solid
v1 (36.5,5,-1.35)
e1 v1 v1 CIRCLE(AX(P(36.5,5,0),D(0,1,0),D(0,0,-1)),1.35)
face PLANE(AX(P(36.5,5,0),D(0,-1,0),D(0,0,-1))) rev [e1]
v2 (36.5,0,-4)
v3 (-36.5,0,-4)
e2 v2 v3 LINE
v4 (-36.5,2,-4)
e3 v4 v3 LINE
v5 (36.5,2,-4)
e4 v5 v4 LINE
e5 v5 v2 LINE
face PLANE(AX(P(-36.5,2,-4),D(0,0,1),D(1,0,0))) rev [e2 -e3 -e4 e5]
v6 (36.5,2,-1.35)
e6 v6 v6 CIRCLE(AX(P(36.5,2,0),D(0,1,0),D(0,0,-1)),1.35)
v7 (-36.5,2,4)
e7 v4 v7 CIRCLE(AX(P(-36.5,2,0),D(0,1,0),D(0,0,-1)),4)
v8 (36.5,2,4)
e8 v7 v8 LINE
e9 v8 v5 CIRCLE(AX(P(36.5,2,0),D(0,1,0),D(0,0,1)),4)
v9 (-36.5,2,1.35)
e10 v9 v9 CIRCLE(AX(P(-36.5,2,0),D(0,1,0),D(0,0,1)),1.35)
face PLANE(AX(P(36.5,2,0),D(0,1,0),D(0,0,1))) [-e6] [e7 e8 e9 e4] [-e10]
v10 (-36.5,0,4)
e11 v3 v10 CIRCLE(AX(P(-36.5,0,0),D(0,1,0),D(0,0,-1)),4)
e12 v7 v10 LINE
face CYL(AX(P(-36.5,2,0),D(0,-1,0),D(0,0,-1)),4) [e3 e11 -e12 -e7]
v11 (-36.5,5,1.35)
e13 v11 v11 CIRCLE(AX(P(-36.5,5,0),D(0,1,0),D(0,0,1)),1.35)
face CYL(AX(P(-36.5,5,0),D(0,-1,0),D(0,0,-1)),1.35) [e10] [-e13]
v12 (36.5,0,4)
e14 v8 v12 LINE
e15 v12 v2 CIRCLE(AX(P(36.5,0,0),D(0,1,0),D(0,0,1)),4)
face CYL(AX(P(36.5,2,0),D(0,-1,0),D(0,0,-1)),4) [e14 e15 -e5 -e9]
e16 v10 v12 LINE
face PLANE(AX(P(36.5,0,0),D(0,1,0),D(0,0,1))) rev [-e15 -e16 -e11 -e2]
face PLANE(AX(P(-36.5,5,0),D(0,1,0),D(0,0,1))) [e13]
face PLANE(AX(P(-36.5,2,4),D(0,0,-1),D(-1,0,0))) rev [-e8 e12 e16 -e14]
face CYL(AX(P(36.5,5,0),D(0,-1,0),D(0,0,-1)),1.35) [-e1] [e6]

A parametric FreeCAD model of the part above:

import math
import FreeCAD as App
import Part
import Sketcher

V = App.Vector
Q = App.Units.Quantity

doc = App.newDocument("Part")
body = doc.addObject("PartDesign::Body", "Body")

sketch1 = doc.addObject("Sketcher::SketchObject", "Sketch")
body.addObject(sketch1)
sketch1.AttachmentSupport = (doc.XZ_Plane, [""])
sketch1.MapMode = "FlatFace"
sketch1.addGeometry([
    Part.LineSegment(V(-36.5, 4, 0), V(36.5, 4, 0)),
    Part.ArcOfCircle(Part.Circle(V(36.5, 0, 0), V(0, 0, 1), 4), math.radians(-90), math.radians(90)),
    Part.LineSegment(V(36.5, -4, 0), V(-36.5, -4, 0)),
    Part.ArcOfCircle(Part.Circle(V(-36.5, 0, 0), V(0, 0, 1), 4), math.radians(90), math.radians(270)),
], False)
sketch1.addConstraint([
    Sketcher.Constraint("Tangent", 0, 2, 1, 2),
    Sketcher.Constraint("Tangent", 1, 1, 2, 1),
    Sketcher.Constraint("Tangent", 2, 2, 3, 2),
    Sketcher.Constraint("Tangent", 3, 1, 0, 1),
    Sketcher.Constraint("Horizontal", 0),
    Sketcher.Constraint("Horizontal", 2),
    Sketcher.Constraint("Symmetric", 1, 3, 3, 3, -1, 1),
    Sketcher.Constraint("Radius", 1, Q("4 mm")),
    Sketcher.Constraint("DistanceX", 0, 1, 0, 2, Q("73 mm")),
])
pad1 = doc.addObject("PartDesign::Pad", "Pad")
body.addObject(pad1)
pad1.Profile = sketch1
pad1.Length = 2
pad1.Reversed = True

sketch2 = doc.addObject("Sketcher::SketchObject", "Sketch001")
body.addObject(sketch2)
sketch2.AttachmentSupport = (doc.XZ_Plane, [""])
sketch2.MapMode = "FlatFace"
sketch2.AttachmentOffset = App.Placement(V(0, 0, -2), App.Rotation())
sketch2.addGeometry([
    Part.Circle(V(-36.5, 0, 0), V(0, 0, 1), 1.35),
    Part.Circle(V(36.5, 0, 0), V(0, 0, 1), 1.35),
], False)
sketch2.addConstraint([
    Sketcher.Constraint("Equal", 0, 1),
    Sketcher.Constraint("Symmetric", 0, 3, 1, 3, -1, 1),
    Sketcher.Constraint("PointOnObject", 0, 3, -1),
    Sketcher.Constraint("Diameter", 0, Q("2.7 mm")),
    Sketcher.Constraint("DistanceX", 0, 3, 1, 3, Q("73 mm")),
])
pad2 = doc.addObject("PartDesign::Pad", "Pad001")
body.addObject(pad2)
pad2.Profile = sketch2
pad2.Length = 3
pad2.Reversed = True

doc.recompute()
